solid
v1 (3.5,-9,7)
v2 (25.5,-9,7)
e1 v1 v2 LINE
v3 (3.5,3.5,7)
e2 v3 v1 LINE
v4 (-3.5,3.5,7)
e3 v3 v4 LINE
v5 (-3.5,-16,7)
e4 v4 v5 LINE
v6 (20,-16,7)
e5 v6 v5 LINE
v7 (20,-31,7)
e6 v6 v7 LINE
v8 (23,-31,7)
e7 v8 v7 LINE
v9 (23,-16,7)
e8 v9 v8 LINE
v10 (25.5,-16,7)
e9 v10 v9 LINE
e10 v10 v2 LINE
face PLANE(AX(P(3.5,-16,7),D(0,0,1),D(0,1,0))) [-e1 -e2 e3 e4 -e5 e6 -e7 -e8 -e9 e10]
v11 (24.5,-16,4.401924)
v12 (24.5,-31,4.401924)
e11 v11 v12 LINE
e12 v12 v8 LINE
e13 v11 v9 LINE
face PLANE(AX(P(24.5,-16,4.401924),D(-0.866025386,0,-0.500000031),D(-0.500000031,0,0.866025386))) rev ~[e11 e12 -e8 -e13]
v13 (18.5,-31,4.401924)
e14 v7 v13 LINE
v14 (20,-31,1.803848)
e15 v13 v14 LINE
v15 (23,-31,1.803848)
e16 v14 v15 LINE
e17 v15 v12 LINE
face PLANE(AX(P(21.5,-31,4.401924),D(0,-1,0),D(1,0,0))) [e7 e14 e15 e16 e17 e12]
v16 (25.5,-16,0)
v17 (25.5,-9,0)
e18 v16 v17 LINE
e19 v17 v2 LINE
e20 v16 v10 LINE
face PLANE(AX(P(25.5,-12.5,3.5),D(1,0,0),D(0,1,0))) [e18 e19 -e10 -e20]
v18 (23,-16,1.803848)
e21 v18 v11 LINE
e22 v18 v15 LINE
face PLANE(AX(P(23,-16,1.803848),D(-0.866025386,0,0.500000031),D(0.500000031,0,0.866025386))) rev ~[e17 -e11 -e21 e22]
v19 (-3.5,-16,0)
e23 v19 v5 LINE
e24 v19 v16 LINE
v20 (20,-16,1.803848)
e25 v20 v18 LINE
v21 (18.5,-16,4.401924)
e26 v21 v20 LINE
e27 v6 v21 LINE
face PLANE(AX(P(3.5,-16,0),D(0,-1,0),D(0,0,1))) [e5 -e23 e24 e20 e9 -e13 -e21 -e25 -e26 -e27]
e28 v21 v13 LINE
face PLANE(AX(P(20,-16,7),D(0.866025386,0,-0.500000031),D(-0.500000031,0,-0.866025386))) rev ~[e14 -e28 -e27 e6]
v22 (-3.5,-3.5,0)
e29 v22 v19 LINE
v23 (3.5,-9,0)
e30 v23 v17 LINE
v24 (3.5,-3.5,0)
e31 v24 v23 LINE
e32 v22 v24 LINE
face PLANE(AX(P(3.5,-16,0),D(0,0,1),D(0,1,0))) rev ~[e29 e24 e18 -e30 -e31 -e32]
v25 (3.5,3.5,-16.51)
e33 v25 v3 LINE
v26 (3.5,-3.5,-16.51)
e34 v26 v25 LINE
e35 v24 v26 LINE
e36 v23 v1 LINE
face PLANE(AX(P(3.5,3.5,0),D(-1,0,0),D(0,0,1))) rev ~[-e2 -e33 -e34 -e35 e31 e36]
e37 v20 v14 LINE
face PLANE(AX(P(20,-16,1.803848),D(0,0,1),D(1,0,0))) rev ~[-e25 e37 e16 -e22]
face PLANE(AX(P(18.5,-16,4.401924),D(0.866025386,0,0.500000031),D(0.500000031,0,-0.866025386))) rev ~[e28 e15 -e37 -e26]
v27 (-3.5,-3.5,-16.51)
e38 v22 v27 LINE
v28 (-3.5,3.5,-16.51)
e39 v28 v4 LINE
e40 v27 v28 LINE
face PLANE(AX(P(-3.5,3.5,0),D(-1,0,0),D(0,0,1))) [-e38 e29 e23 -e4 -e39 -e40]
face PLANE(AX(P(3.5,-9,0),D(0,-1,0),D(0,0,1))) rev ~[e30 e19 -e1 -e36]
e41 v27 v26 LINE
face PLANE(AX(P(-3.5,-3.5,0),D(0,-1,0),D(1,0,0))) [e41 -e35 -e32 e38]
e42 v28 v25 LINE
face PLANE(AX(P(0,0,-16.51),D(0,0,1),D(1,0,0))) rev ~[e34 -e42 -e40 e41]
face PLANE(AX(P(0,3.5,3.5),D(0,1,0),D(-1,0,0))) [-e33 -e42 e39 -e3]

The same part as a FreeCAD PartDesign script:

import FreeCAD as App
import Part
import Sketcher
Q = App.Units.Quantity

doc = App.newDocument("Part")
body = doc.addObject("PartDesign::Body", "Body")

# Sketch on XY plane
sketch1 = body.newObject("Sketcher::SketchObject", "Sketch")
sketch1.AttachmentSupport = (doc.getObject("XY_Plane"), [""])
sketch1.MapMode = "FlatFace"
sketch1.addGeometry(Part.LineSegment(App.Vector(-4, 4, 0), App.Vector(-4, -4, 0)), False)
sketch1.addGeometry(Part.LineSegment(App.Vector(-4, -4, 0), App.Vector(4, -4, 0)), False)
sketch1.addGeometry(Part.LineSegment(App.Vector(4, -4, 0), App.Vector(4, 4, 0)), False)
sketch1.addGeometry(Part.LineSegment(App.Vector(4, 4, 0), App.Vector(-4, 4, 0)), False)
sketch1.addConstraint(Sketcher.Constraint("Coincident", 0, 2, 1, 1))
sketch1.addConstraint(Sketcher.Constraint("Coincident", 1, 2, 2, 1))
sketch1.addConstraint(Sketcher.Constraint("Coincident", 2, 2, 3, 1))
sketch1.addConstraint(Sketcher.Constraint("Coincident", 3, 2, 0, 1))
sketch1.addConstraint(Sketcher.Constraint("Vertical", 0))
sketch1.addConstraint(Sketcher.Constraint("Horizontal", 1))
sketch1.addConstraint(Sketcher.Constraint("Vertical", 2))
sketch1.addConstraint(Sketcher.Constraint("Horizontal", 3))
sketch1.addConstraint(Sketcher.Constraint("Symmetric", 0, 2, 2, 2, -1, 1))
sketch1.addConstraint(Sketcher.Constraint("Equal", 3, 0))
sketch1.addConstraint(Sketcher.Constraint("DistanceX", 1, 1, 1, 2, 7.0))
pad1 = body.newObject("PartDesign::Pad", "Pad")
pad1.Profile = sketch1
pad1.Length = 16.51
pad1.Reversed = True

# Sketch on XZ plane
sketch2 = body.newObject("Sketcher::SketchObject", "Sketch001")
sketch2.AttachmentSupport = (doc.getObject("XZ_Plane"), [""])
sketch2.MapMode = "FlatFace"
sketch2.AttachmentOffset = App.Placement(App.Vector(0, 0, -3.5), App.Rotation())
sketch2.addGeometry(Part.LineSegment(App.Vector(4, 7, 0), App.Vector(4, 0, 0)), False)
sketch2.addGeometry(Part.LineSegment(App.Vector(4, 0, 0), App.Vector(-4, 0, 0)), False)
sketch2.addGeometry(Part.LineSegment(App.Vector(-4, 0, 0), App.Vector(-4, 7, 0)), False)
sketch2.addGeometry(Part.LineSegment(App.Vector(-4, 7, 0), App.Vector(4, 7, 0)), False)
sketch2.addConstraint(Sketcher.Constraint("Coincident", 0, 2, 1, 1))
sketch2.addConstraint(Sketcher.Constraint("Coincident", 1, 2, 2, 1))
sketch2.addConstraint(Sketcher.Constraint("Coincident", 2, 2, 3, 1))
sketch2.addConstraint(Sketcher.Constraint("Coincident", 3, 2, 0, 1))
sketch2.addConstraint(Sketcher.Constraint("Vertical", 0))
sketch2.addConstraint(Sketcher.Constraint("Horizontal", 1))
sketch2.addConstraint(Sketcher.Constraint("Vertical", 2))
sketch2.addConstraint(Sketcher.Constraint("Horizontal", 3))
sketch2.addConstraint(Sketcher.Constraint("Symmetric", 0, 2, 1, 2, -1, 1))
sketch2.addConstraint(Sketcher.Constraint("Equal", 3, 0))
sketch2.addConstraint(Sketcher.Constraint("DistanceX", 1, 2, 1, 1, 7.0))
pad2 = body.newObject("PartDesign::Pad", "Pad001")
pad2.Profile = sketch2
pad2.Length = 19.5

# Sketch on YZ plane
sketch3 = body.newObject("Sketcher::SketchObject", "Sketch002")
sketch3.AttachmentSupport = (doc.getObject("YZ_Plane"), [""])
sketch3.MapMode = "FlatFace"
sketch3.AttachmentOffset = App.Placement(App.Vector(0, 0, 3.5), App.Rotation())
sketch3.addGeometry(Part.LineSegment(App.Vector(-16, 7, 0), App.Vector(-16, 0, 0)), False)
sketch3.addGeometry(Part.LineSegment(App.Vector(-16, 0, 0), App.Vector(-9, 0, 0)), False)
sketch3.addGeometry(Part.LineSegment(App.Vector(-9, 0, 0), App.Vector(-9, 7, 0)), False)
sketch3.addGeometry(Part.LineSegment(App.Vector(-9, 7, 0), App.Vector(-16, 7, 0)), False)
sketch3.addConstraint(Sketcher.Constraint("Coincident", 0, 2, 1, 1))
sketch3.addConstraint(Sketcher.Constraint("Coincident", 1, 2, 2, 1))
sketch3.addConstraint(Sketcher.Constraint("Coincident", 2, 2, 3, 1))
sketch3.addConstraint(Sketcher.Constraint("Coincident", 3, 2, 0, 1))
sketch3.addConstraint(Sketcher.Constraint("Vertical", 0))
sketch3.addConstraint(Sketcher.Constraint("Horizontal", 1))
sketch3.addConstraint(Sketcher.Constraint("Vertical", 2))
sketch3.addConstraint(Sketcher.Constraint("Horizontal", 3))
sketch3.addConstraint(Sketcher.Constraint("PointOnObject", 0, 2, -1))
sketch3.addConstraint(Sketcher.Constraint("Equal", 3, 0))
sketch3.addConstraint(Sketcher.Constraint("DistanceX", 1, 1, 1, 2, 7.0))
sketch3.addConstraint(Sketcher.Constraint("DistanceX", 0, 2, -1, 1, 16.0))
pad3 = body.newObject("PartDesign::Pad", "Pad002")
pad3.Profile = sketch3
pad3.Length = 22

# Sketch on XZ plane
sketch4 = body.newObject("Sketcher::SketchObject", "Sketch003")
sketch4.AttachmentSupport = (doc.getObject("XZ_Plane"), [""])
sketch4.MapMode = "FlatFace"
sketch4.AttachmentOffset = App.Placement(App.Vector(0, 0, 16), App.Rotation())
sketch4.addGeometry(Part.LineSegment(App.Vector(23, 7, 0), App.Vector(20, 7, 0)), False)
sketch4.addGeometry(Part.LineSegment(App.Vector(20, 7, 0), App.Vector(18.5, 4.4, 0)), False)
sketch4.addGeometry(Part.LineSegment(App.Vector(18.5, 4.4, 0), App.Vector(20, 1.8, 0)), False)
sketch4.addGeometry(Part.LineSegment(App.Vector(20, 1.8, 0), App.Vector(23, 1.8, 0)), False)
sketch4.addGeometry(Part.LineSegment(App.Vector(23, 1.8, 0), App.Vector(24.5, 4.4, 0)), False)
sketch4.addGeometry(Part.LineSegment(App.Vector(24.5, 4.4, 0), App.Vector(23, 7, 0)), False)
sketch4.addConstraint(Sketcher.Constraint("Coincident", 0, 2, 1, 1))
sketch4.addConstraint(Sketcher.Constraint("Coincident", 1, 2, 2, 1))
sketch4.addConstraint(Sketcher.Constraint("Coincident", 2, 2, 3, 1))
sketch4.addConstraint(Sketcher.Constraint("Coincident", 3, 2, 4, 1))
sketch4.addConstraint(Sketcher.Constraint("Coincident", 4, 2, 5, 1))
sketch4.addConstraint(Sketcher.Constraint("Coincident", 5, 2, 0, 1))
sketch4.addConstraint(Sketcher.Constraint("Horizontal", 0))
sketch4.addConstraint(Sketcher.Constraint("Horizontal", 3))
sketch4.addConstraint(Sketcher.Constraint("Parallel", 1, 4))
sketch4.addConstraint(Sketcher.Constraint("Parallel", 2, 5))
sketch4.addConstraint(Sketcher.Constraint("Horizontal", 1, 2, 4, 2))
sketch4.addConstraint(Sketcher.Constraint("Vertical", 0, 2, 2, 2))
sketch4.addConstraint(Sketcher.Constraint("Vertical", 3, 2, 5, 2))
sketch4.addConstraint(Sketcher.Constraint("DistanceX", 0, 2, 0, 1, 3.0))
sketch4.addConstraint(Sketcher.Constraint("Angle", 1, Q("-120.000002 deg")))
sketch4.addConstraint(Sketcher.Constraint("Distance", 1, 3.0))
sketch4.addConstraint(Sketcher.Constraint("DistanceX", -1, 1, 0, 2, 20.0))
sketch4.addConstraint(Sketcher.Constraint("DistanceY", -1, 1, 0, 2, 7.0))
pad4 = body.newObject("PartDesign::Pad", "Pad003")
pad4.Profile = sketch4
pad4.Length = 15

doc.recompute()
